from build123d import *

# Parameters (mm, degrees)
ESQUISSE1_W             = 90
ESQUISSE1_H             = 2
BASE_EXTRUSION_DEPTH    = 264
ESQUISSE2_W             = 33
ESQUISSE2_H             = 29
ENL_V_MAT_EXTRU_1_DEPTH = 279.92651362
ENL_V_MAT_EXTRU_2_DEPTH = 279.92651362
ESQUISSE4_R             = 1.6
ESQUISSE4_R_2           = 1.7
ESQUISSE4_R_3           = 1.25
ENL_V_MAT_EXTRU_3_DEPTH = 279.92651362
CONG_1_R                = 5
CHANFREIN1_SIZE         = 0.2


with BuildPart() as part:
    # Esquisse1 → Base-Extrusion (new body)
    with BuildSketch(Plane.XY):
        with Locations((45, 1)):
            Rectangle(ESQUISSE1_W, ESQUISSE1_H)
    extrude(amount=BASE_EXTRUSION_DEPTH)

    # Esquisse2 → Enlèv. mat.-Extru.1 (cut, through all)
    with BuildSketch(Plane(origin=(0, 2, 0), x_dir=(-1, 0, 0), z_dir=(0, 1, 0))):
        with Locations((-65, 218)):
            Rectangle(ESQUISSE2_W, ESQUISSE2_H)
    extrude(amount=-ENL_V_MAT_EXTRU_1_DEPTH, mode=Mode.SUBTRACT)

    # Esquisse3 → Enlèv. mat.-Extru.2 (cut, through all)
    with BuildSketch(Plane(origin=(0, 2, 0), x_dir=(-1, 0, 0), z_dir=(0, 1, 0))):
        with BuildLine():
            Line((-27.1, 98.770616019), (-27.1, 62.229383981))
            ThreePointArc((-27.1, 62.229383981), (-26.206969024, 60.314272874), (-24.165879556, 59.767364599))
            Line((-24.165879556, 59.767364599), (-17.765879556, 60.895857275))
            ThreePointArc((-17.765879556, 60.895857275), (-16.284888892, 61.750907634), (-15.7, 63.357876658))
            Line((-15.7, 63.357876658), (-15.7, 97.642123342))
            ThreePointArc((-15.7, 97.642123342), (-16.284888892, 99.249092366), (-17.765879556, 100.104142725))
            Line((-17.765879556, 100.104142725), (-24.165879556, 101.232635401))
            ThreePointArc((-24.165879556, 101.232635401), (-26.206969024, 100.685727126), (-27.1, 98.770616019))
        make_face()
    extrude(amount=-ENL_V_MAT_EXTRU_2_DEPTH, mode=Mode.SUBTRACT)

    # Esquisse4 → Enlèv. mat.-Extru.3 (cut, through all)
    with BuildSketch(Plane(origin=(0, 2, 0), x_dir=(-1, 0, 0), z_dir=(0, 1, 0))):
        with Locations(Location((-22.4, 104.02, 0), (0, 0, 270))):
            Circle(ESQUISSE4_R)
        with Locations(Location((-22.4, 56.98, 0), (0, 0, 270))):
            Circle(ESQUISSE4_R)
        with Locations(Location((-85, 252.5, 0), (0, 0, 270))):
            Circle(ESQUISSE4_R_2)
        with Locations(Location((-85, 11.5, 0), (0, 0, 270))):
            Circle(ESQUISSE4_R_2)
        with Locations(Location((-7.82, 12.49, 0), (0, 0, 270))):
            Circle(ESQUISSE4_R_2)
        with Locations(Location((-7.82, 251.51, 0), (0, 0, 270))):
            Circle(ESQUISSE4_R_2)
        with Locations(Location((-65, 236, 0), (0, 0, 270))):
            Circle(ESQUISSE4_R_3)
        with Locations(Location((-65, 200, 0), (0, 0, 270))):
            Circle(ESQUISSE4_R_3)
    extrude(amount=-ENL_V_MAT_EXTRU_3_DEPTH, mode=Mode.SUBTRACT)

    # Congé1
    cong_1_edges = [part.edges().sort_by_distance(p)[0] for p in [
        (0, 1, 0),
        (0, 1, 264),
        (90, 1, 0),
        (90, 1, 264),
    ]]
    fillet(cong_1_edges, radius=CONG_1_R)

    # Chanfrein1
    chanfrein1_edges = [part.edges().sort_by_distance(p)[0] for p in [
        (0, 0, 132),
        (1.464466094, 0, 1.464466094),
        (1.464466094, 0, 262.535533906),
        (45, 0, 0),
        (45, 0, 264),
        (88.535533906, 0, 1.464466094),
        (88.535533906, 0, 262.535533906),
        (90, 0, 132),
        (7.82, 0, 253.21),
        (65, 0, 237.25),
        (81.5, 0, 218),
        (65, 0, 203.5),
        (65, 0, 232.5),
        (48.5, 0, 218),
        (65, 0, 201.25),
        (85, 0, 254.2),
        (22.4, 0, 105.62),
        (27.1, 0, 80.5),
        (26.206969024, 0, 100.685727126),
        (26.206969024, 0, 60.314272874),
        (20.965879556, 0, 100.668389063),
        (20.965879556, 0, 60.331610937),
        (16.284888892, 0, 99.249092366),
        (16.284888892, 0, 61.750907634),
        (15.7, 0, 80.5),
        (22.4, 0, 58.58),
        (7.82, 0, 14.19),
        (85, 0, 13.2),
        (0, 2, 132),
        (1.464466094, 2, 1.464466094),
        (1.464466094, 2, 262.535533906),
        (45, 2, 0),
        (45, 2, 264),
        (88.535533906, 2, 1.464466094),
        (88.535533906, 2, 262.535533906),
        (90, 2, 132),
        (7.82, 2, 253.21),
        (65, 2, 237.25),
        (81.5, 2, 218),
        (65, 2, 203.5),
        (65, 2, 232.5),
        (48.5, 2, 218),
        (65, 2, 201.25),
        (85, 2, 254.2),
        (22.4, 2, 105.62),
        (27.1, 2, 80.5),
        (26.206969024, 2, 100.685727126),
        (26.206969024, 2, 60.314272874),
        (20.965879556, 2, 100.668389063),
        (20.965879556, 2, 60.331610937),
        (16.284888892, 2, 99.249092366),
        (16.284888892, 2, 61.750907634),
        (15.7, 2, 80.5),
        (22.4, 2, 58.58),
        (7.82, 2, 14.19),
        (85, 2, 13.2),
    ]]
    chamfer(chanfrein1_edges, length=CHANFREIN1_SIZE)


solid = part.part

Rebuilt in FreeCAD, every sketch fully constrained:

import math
import FreeCAD as App
import Part
import Sketcher
from FreeCAD import Vector
Q = App.Units.Quantity


def edges_at(feature, points):
    """Names of the edges that pass closest to the given points."""
    edges = feature.Shape.Edges
    near = lambda p: min(range(len(edges)), key=lambda i: edges[i].distToShape(Part.Vertex(*p))[0])
    return sorted({f"Edge{near(p) + 1}" for p in points})

doc = App.newDocument("Part")
params = doc.addObject("Spreadsheet::Sheet", "Params")
for row, (alias, value) in enumerate([
    ("sketch1_width", "90 mm"),
    ("sketch1_height", "2 mm"),
    ("pad1_length", "264 mm"),
    ("sketch2_width", "33 mm"),
    ("sketch2_height", "29 mm"),
    ("sketch3_radius", "2.5 mm"),
    ("sketch4_diameter", "3.2 mm"),
    ("sketch4_diameter2", "3.4 mm"),
    ("sketch4_diameter3", "2.5 mm"),
    ("fillet_radius", "5 mm"),
    ("chamfer_size", "0.2 mm"),
], start=1):
    params.set(f"A{row}", alias)
    params.set(f"B{row}", "=" + value)
    params.setAlias(f"B{row}", alias)

body = doc.addObject("PartDesign::Body", "Body")

# Sketch on XY plane
sketch1 = doc.addObject("Sketcher::SketchObject", "Sketch")
body.addObject(sketch1)
sketch1.AttachmentSupport = (doc.XY_Plane, [""])
sketch1.MapMode = "FlatFace"
sketch1.addGeometry([
    Part.LineSegment(Vector(0, 2, 0), Vector(0, 0, 0)),
    Part.LineSegment(Vector(0, 0, 0), Vector(90, 0, 0)),
    Part.LineSegment(Vector(90, 0, 0), Vector(90, 2, 0)),
    Part.LineSegment(Vector(90, 2, 0), Vector(0, 2, 0)),
], False)
sketch1.addConstraint([
    Sketcher.Constraint("Coincident", 0, 2, 1, 1),
    Sketcher.Constraint("Coincident", 1, 2, 2, 1),
    Sketcher.Constraint("Coincident", 2, 2, 3, 1),
    Sketcher.Constraint("Coincident", 3, 2, 0, 1),
    Sketcher.Constraint("Vertical", 0),
    Sketcher.Constraint("Horizontal", 1),
    Sketcher.Constraint("Vertical", 2),
    Sketcher.Constraint("Horizontal", 3),
    Sketcher.Constraint("Coincident", 0, 2, -1, 1),
    Sketcher.Constraint("DistanceX", 1, 1, 1, 2, Q("90 mm")),
    Sketcher.Constraint("DistanceY", 0, 2, 0, 1, Q("2 mm")),
])
sketch1.setExpression("Constraints[9]", "Params.sketch1_width")
sketch1.setExpression("Constraints[10]", "Params.sketch1_height")
pad1 = doc.addObject("PartDesign::Pad", "Pad")
body.addObject(pad1)
pad1.Profile = sketch1
pad1.setExpression("Length", "Params.pad1_length")

# Sketch on XZ plane
sketch2 = doc.addObject("Sketcher::SketchObject", "Sketch001")
body.addObject(sketch2)
sketch2.AttachmentSupport = (doc.XZ_Plane, [""])
sketch2.MapMode = "FlatFace"
sketch2.AttachmentOffset = App.Placement(Vector(0, 0, -2), App.Rotation())
sketch2.addGeometry([
    Part.LineSegment(Vector(81.5, 232.5, 0), Vector(81.5, 203.5, 0)),
    Part.LineSegment(Vector(81.5, 203.5, 0), Vector(48.5, 203.5, 0)),
    Part.LineSegment(Vector(48.5, 203.5, 0), Vector(48.5, 232.5, 0)),
    Part.LineSegment(Vector(48.5, 232.5, 0), Vector(81.5, 232.5, 0)),
], False)
sketch2.addConstraint([
    Sketcher.Constraint("Coincident", 0, 2, 1, 1),
    Sketcher.Constraint("Coincident", 1, 2, 2, 1),
    Sketcher.Constraint("Coincident", 2, 2, 3, 1),
    Sketcher.Constraint("Coincident", 3, 2, 0, 1),
    Sketcher.Constraint("Vertical", 0),
    Sketcher.Constraint("Horizontal", 1),
    Sketcher.Constraint("Vertical", 2),
    Sketcher.Constraint("Horizontal", 3),
    Sketcher.Constraint("DistanceX", 1, 2, 1, 1, Q("33 mm")),
    Sketcher.Constraint("DistanceY", 0, 2, 0, 1, Q("29 mm")),
    Sketcher.Constraint("DistanceX", -1, 1, 0, 2, Q("81.5 mm")),
    Sketcher.Constraint("DistanceY", -1, 1, 0, 2, Q("203.5 mm")),
])
sketch2.setExpression("Constraints[8]", "Params.sketch2_width")
sketch2.setExpression("Constraints[9]", "Params.sketch2_height")
pocket1 = doc.addObject("PartDesign::Pocket", "Pocket")
body.addObject(pocket1)
pocket1.Profile = sketch2
pocket1.Type = "ThroughAll"
pocket1.Reversed = True

# Sketch on XZ plane
sketch3 = doc.addObject("Sketcher::SketchObject", "Sketch002")
body.addObject(sketch3)
sketch3.AttachmentSupport = (doc.XZ_Plane, [""])
sketch3.MapMode = "FlatFace"
sketch3.AttachmentOffset = App.Placement(Vector(0, 0, -2), App.Rotation())
sketch3.addGeometry([
    Part.LineSegment(Vector(27.1, 98.770616, 0), Vector(27.1, 62.229384, 0)),  # 0
    Part.ArcOfCircle(Part.Circle(Vector(24.6, 62.229384, 0), Vector(0, 0, 1), 2.5), math.radians(-100), math.radians(0)),  # 1
    Part.LineSegment(Vector(24.16588, 59.767365, 0), Vector(17.76588, 60.895857, 0)),  # 2
    Part.ArcOfCircle(Part.Circle(Vector(18.2, 63.357877, 0), Vector(0, 0, 1), 2.5), math.radians(180), math.radians(260)),  # 3
    Part.LineSegment(Vector(15.7, 63.357877, 0), Vector(15.7, 97.642123, 0)),  # 4
    Part.ArcOfCircle(Part.Circle(Vector(18.2, 97.642123, 0), Vector(0, 0, 1), 2.5), math.radians(100), math.radians(180)),  # 5
    Part.LineSegment(Vector(17.76588, 100.104143, 0), Vector(24.16588, 101.232635, 0)),  # 6
    Part.ArcOfCircle(Part.Circle(Vector(24.6, 98.770616, 0), Vector(0, 0, 1), 2.5), math.radians(0), math.radians(100)),  # 7
], False)
sketch3.addConstraint([
    Sketcher.Constraint("Tangent", 0, 2, 1, 2),
    Sketcher.Constraint("Tangent", 1, 1, 2, 1),
    Sketcher.Constraint("Tangent", 2, 2, 3, 2),
    Sketcher.Constraint("Tangent", 3, 1, 4, 1),
    Sketcher.Constraint("Tangent", 4, 2, 5, 2),
    Sketcher.Constraint("Tangent", 5, 1, 6, 1),
    Sketcher.Constraint("Tangent", 6, 2, 7, 2),
    Sketcher.Constraint("Tangent", 7, 1, 0, 1),
    Sketcher.Constraint("Vertical", 0),
    Sketcher.Constraint("Vertical", 4),
    Sketcher.Constraint("Equal", 1, 3),
    Sketcher.Constraint("Equal", 3, 5),
    Sketcher.Constraint("Equal", 5, 7),
    Sketcher.Constraint("Vertical", 2, 2, 5, 1),
    Sketcher.Constraint("Radius", 1, Q("2.5 mm")),
    Sketcher.Constraint("Angle", 2, Q("170 deg")),
    Sketcher.Constraint("DistanceX", -1, 1, 1, 3, Q("24.6 mm")),
    Sketcher.Constraint("DistanceX", -1, 1, 3, 3, Q("18.2 mm")),
    Sketcher.Constraint("DistanceY", 0, 2, 0, 1, Q("36.541232 mm")),
    Sketcher.Constraint("DistanceY", -1, 1, 1, 3, Q("62.229384 mm")),
])
sketch3.setExpression("Constraints[14]", "Params.sketch3_radius")
pocket2 = doc.addObject("PartDesign::Pocket", "Pocket001")
body.addObject(pocket2)
pocket2.Profile = sketch3
pocket2.Type = "ThroughAll"
pocket2.Reversed = True

# Sketch on XZ plane
sketch4 = doc.addObject("Sketcher::SketchObject", "Sketch003")
body.addObject(sketch4)
sketch4.AttachmentSupport = (doc.XZ_Plane, [""])
sketch4.MapMode = "FlatFace"
sketch4.AttachmentOffset = App.Placement(Vector(0, 0, -2), App.Rotation())
sketch4.addGeometry([
    Part.Circle(Vector(22.4, 104.02, 0), Vector(0, 0, 1), 1.6),  # 0
    Part.Circle(Vector(22.4, 56.98, 0), Vector(0, 0, 1), 1.6),  # 1
    Part.Circle(Vector(85, 252.5, 0), Vector(0, 0, 1), 1.7),  # 2
    Part.Circle(Vector(85, 11.5, 0), Vector(0, 0, 1), 1.7),  # 3
    Part.Circle(Vector(7.82, 12.49, 0), Vector(0, 0, 1), 1.7),  # 4
    Part.Circle(Vector(7.82, 251.51, 0), Vector(0, 0, 1), 1.7),  # 5
    Part.Circle(Vector(65, 236, 0), Vector(0, 0, 1), 1.25),  # 6
    Part.Circle(Vector(65, 200, 0), Vector(0, 0, 1), 1.25),  # 7
], False)
sketch4.addConstraint([
    Sketcher.Constraint("Equal", 0, 1),
    Sketcher.Constraint("Equal", 2, 3),
    Sketcher.Constraint("Equal", 3, 4),
    Sketcher.Constraint("Equal", 4, 5),
    Sketcher.Constraint("Equal", 6, 7),
    Sketcher.Constraint("Vertical", 0, 3, 1, 3),
    Sketcher.Constraint("Vertical", 2, 3, 3, 3),
    Sketcher.Constraint("Vertical", 4, 3, 5, 3),
    Sketcher.Constraint("Vertical", 6, 3, 7, 3),
    Sketcher.Constraint("Diameter", 0, Q("3.2 mm")),
    Sketcher.Constraint("Diameter", 2, Q("3.4 mm")),
    Sketcher.Constraint("Diameter", 6, Q("2.5 mm")),
    Sketcher.Constraint("DistanceX", -1, 1, 2, 3, Q("85 mm")),
    Sketcher.Constraint("DistanceX", -1, 1, 6, 3, Q("65 mm")),
    Sketcher.Constraint("DistanceY", -1, 1, 6, 3, Q("236 mm")),
    Sketcher.Constraint("DistanceY", -1, 1, 7, 3, Q("200 mm")),
    Sketcher.Constraint("DistanceY", 3, 3, 2, 3, Q("241 mm")),
    Sketcher.Constraint("DistanceX", -1, 1, 0, 3, Q("22.4 mm")),
    Sketcher.Constraint("DistanceY", -1, 1, 2, 3, Q("252.5 mm")),
    Sketcher.Constraint("DistanceY", -1, 1, 0, 3, Q("104.02 mm")),
    Sketcher.Constraint("DistanceY", -1, 1, 1, 3, Q("56.98 mm")),
    Sketcher.Constraint("DistanceX", -1, 1, 4, 3, Q("7.82 mm")),
    Sketcher.Constraint("DistanceY", -1, 1, 4, 3, Q("12.49 mm")),
    Sketcher.Constraint("DistanceY", -1, 1, 5, 3, Q("251.51 mm")),
])
sketch4.setExpression("Constraints[9]", "Params.sketch4_diameter")
sketch4.setExpression("Constraints[10]", "Params.sketch4_diameter2")
sketch4.setExpression("Constraints[11]", "Params.sketch4_diameter3")
pocket3 = doc.addObject("PartDesign::Pocket", "Pocket002")
body.addObject(pocket3)
pocket3.Profile = sketch4
pocket3.Type = "ThroughAll"
pocket3.Reversed = True
doc.recompute()

fillet = doc.addObject("PartDesign::Fillet", "Fillet")
body.addObject(fillet)
fillet.Base = (pocket3, edges_at(pocket3, [
    (0, 1, 0),
    (0, 1, 264),
    (90, 1, 0),
    (90, 1, 264),
]))
fillet.setExpression("Radius", "Params.fillet_radius")
doc.recompute()

chamfer = doc.addObject("PartDesign::Chamfer", "Chamfer")
body.addObject(chamfer)
chamfer.Base = (fillet, edges_at(fillet, [
    (0, 0, 132),
    (1.464, 0, 1.464),
    (1.464, 0, 262.536),
    (45, 0, 0),
    (45, 0, 264),
    (88.536, 0, 1.464),
    (88.536, 0, 262.536),
    (90, 0, 132),
    (7.82, 0, 253.21),
    (65, 0, 237.25),
    (81.5, 0, 218),
    (65, 0, 203.5),
    (65, 0, 232.5),
    (48.5, 0, 218),
    (65, 0, 201.25),
    (85, 0, 254.2),
    (22.4, 0, 105.62),
    (27.1, 0, 80.5),
    (26.207, 0, 100.686),
    (26.207, 0, 60.314),
    (20.966, 0, 100.668),
    (20.966, 0, 60.332),
    (16.285, 0, 99.249),
    (16.285, 0, 61.751),
    (15.7, 0, 80.5),
    (22.4, 0, 58.58),
    (7.82, 0, 14.19),
    (85, 0, 13.2),
    (0, 2, 132),
    (1.464, 2, 1.464),
    (1.464, 2, 262.536),
    (45, 2, 0),
    (45, 2, 264),
    (88.536, 2, 1.464),
    (88.536, 2, 262.536),
    (90, 2, 132),
    (7.82, 2, 253.21),
    (65, 2, 237.25),
    (81.5, 2, 218),
    (65, 2, 203.5),
    (65, 2, 232.5),
    (48.5, 2, 218),
    (65, 2, 201.25),
    (85, 2, 254.2),
    (22.4, 2, 105.62),
    (27.1, 2, 80.5),
    (26.207, 2, 100.686),
    (26.207, 2, 60.314),
    (20.966, 2, 100.668),
    (20.966, 2, 60.332),
    (16.285, 2, 99.249),
    (16.285, 2, 61.751),
    (15.7, 2, 80.5),
    (22.4, 2, 58.58),
    (7.82, 2, 14.19),
    (85, 2, 13.2),
]))
chamfer.setExpression("Size", "Params.chamfer_size")

doc.recompute()
